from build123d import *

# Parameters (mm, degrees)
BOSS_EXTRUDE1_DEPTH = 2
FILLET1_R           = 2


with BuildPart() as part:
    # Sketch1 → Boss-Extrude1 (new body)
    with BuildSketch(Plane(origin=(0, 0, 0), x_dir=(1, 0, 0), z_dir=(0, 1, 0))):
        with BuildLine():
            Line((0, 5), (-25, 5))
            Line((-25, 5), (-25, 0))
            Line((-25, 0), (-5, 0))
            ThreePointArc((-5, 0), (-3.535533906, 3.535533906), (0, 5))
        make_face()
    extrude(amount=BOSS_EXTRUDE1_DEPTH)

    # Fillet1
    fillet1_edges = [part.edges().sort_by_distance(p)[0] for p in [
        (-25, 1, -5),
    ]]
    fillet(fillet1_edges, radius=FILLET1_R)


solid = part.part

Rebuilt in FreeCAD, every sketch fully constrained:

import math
import FreeCAD as App
import Part
import Sketcher

V = App.Vector
Q = App.Units.Quantity


def edges_at(feature, points):
    """Names of the edges that pass closest to the given points."""
    edges = feature.Shape.Edges
    near = lambda p: min(range(len(edges)), key=lambda i: edges[i].distToShape(Part.Vertex(*p))[0])
    return sorted({f"Edge{near(p) + 1}" for p in points})

doc = App.newDocument("Part")
body = doc.addObject("PartDesign::Body", "Body")

# Sketch on XZ plane
sketch1 = body.newObject("Sketcher::SketchObject", "Sketch")
sketch1.AttachmentSupport = (doc.getObject("XZ_Plane"), [""])
sketch1.MapMode = "FlatFace"
sketch1.addGeometry([
    Part.LineSegment(V(0, -5, 0), V(-25, -5, 0)),
    Part.LineSegment(V(-25, -5, 0), V(-25, 0, 0)),
    Part.LineSegment(V(-25, 0, 0), V(-5, 0, 0)),
    Part.ArcOfCircle(Part.Circle(V(0, 0, 0), V(0, 0, 1), 5), math.radians(180), math.radians(270)),
], False)
sketch1.addConstraint([
    Sketcher.Constraint("Coincident", 0, 2, 1, 1),
    Sketcher.Constraint("Coincident", 1, 2, 2, 1),
    Sketcher.Constraint("Coincident", 2, 2, 3, 1),
    Sketcher.Constraint("Tangent", 3, 2, 0, 1),
    Sketcher.Constraint("Horizontal", 0),
    Sketcher.Constraint("Vertical", 1),
    Sketcher.Constraint("Horizontal", 2),
    Sketcher.Constraint("Coincident", 3, 3, -1, 1),
    Sketcher.Constraint("PointOnObject", 1, 2, -1),
    Sketcher.Constraint("Radius", 3, Q("5 mm")),
    Sketcher.Constraint("DistanceX", 0, 2, 0, 1, Q("25 mm")),
])
pad1 = body.newObject("PartDesign::Pad", "Pad")
pad1.Profile = sketch1
pad1.Length = 2
pad1.Reversed = True
doc.recompute()

fillet = body.newObject("PartDesign::Fillet", "Fillet")
fillet.Base = (pad1, edges_at(pad1, [(-25, 1, -5)]))
fillet.Radius = 2

doc.recompute()
